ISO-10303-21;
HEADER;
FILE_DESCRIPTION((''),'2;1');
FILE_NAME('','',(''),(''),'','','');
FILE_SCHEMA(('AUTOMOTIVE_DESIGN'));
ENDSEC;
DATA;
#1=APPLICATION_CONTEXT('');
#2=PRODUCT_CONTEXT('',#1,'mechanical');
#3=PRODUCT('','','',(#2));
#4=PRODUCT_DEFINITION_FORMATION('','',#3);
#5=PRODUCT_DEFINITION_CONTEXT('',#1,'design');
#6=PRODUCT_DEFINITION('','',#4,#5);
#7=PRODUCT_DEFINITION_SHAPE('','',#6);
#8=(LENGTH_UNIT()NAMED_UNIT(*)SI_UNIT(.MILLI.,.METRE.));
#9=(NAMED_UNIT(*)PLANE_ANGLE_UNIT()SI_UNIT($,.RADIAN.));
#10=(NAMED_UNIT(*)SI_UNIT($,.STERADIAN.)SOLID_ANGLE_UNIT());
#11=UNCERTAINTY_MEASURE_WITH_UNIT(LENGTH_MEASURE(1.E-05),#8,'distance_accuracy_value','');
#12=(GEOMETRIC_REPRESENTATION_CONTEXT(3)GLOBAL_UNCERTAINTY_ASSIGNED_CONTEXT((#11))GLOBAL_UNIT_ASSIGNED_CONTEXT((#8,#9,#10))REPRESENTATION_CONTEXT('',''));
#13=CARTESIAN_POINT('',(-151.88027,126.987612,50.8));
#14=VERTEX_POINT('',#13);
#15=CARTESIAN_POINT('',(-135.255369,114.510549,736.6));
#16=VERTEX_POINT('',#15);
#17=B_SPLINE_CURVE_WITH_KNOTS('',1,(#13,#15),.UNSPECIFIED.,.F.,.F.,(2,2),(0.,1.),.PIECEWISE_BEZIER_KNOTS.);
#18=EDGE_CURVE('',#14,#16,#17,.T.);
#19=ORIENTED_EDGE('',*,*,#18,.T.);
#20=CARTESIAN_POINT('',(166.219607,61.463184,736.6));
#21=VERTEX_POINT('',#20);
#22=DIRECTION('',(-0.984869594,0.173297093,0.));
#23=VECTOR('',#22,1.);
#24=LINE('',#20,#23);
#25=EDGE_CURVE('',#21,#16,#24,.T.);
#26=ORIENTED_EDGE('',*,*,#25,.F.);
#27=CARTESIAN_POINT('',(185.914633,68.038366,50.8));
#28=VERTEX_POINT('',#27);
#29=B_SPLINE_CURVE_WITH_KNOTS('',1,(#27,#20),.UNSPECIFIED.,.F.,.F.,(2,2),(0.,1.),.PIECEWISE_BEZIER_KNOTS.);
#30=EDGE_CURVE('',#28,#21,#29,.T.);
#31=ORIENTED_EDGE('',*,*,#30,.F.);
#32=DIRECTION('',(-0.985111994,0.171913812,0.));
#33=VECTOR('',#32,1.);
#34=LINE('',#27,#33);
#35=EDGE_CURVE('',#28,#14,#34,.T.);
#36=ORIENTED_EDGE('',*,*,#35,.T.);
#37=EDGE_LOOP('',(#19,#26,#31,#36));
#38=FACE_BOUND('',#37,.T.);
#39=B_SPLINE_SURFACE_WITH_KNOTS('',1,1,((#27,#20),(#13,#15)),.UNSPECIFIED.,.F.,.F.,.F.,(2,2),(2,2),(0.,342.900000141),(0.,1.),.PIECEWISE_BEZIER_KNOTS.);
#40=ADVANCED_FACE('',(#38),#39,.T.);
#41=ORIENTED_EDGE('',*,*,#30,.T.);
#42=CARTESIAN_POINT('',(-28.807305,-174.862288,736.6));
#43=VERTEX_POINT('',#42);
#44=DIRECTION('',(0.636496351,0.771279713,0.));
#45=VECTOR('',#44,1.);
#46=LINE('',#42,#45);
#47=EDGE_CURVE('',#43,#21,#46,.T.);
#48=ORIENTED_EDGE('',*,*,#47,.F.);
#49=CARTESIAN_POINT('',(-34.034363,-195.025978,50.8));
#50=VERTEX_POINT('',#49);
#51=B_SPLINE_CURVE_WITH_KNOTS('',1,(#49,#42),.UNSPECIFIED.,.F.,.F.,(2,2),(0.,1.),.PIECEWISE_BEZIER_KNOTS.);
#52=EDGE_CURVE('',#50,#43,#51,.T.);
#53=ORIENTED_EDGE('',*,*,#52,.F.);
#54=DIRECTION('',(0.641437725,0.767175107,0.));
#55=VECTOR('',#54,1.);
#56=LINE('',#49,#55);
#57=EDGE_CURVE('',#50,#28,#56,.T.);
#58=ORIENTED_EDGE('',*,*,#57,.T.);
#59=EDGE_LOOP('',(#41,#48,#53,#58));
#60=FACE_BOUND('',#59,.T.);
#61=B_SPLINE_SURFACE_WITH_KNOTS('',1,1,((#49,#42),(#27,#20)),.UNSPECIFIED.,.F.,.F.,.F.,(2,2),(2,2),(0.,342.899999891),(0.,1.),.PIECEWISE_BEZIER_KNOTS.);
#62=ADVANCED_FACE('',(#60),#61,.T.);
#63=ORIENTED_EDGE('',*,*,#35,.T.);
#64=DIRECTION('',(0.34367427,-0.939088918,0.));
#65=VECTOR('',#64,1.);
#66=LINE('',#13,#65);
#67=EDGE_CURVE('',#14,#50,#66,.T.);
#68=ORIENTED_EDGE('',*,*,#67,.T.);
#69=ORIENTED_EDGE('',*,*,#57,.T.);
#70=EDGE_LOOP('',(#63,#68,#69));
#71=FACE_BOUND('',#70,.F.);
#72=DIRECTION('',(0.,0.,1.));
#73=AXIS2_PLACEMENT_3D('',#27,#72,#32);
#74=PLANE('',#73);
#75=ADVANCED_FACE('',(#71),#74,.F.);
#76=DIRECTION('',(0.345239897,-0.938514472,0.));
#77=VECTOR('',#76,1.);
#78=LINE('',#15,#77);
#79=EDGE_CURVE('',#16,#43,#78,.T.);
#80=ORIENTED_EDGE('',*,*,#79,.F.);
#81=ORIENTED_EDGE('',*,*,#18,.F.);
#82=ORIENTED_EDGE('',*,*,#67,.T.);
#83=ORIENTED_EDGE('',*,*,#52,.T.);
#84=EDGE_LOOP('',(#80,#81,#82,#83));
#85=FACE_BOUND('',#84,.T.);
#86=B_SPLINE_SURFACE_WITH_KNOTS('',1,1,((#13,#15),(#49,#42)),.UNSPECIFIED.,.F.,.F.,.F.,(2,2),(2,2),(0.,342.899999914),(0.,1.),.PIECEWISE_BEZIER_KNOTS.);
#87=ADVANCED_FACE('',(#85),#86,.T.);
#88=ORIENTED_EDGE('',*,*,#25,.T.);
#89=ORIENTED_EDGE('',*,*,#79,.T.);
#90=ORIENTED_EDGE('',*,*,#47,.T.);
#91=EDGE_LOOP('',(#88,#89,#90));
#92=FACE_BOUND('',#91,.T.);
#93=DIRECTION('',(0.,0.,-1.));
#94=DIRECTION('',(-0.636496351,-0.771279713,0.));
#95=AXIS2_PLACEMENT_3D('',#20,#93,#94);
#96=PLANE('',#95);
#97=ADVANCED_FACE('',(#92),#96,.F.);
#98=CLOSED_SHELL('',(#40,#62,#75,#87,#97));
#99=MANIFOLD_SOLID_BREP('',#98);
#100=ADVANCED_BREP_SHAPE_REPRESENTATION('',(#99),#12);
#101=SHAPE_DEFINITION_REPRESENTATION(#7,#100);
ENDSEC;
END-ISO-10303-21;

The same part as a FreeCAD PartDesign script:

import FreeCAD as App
import Part
import Sketcher
Q = App.Units.Quantity


def add_polygon(sketch, points):
    """Adds a closed chain of lines whose ends are joined by coincident constraints."""
    first, n = sketch.GeometryCount, len(points)
    for a, b in zip(points, points[1:] + points[:1]):
        sketch.addGeometry(Part.LineSegment(App.Vector(*a, 0), App.Vector(*b, 0)), False)
    for i in range(n):
        sketch.addConstraint(Sketcher.Constraint("Coincident", first + i, 2, first + (i + 1) % n, 1))

doc = App.newDocument("Part")
params = doc.addObject("Spreadsheet::Sheet", "Params")
for row, (alias, value) in enumerate([
    ("sketch1_length", "13.5 in"),
], start=1):
    params.set(f"A{row}", alias)
    params.set(f"B{row}", "=" + value)
    params.setAlias(f"B{row}", alias)

body = doc.addObject("PartDesign::Body", "Body")

# Sketch on XY plane
sketch1 = doc.addObject("Sketcher::SketchObject", "Sketch")
body.addObject(sketch1)
sketch1.AttachmentSupport = (doc.XY_Plane, [""])
sketch1.MapMode = "FlatFace"
sketch1.AttachmentOffset = App.Placement(App.Vector(0, 0, 2 * 25.4), App.Rotation())
add_polygon(sketch1, [(186, 68), (-152, 127), (-34, -195)])  # lines 0-2
sketch1.addConstraint([
    Sketcher.Constraint("Equal", 0, 1),
    Sketcher.Constraint("Equal", 1, 2),
    Sketcher.Constraint("Distance", 0, Q("13.5 in")),
    Sketcher.Constraint("DistanceX", 0, 2, -1, 1, Q("151.88027 mm")),
    Sketcher.Constraint("DistanceY", -1, 1, 0, 2, Q("126.987612 mm")),
    Sketcher.Constraint("DistanceY", 1, 2, -1, 1, Q("195.025978 mm")),
])
sketch1.setExpression("Constraints[5]", "Params.sketch1_length")

# Sketch on XY plane
sketch2 = doc.addObject("Sketcher::SketchObject", "Sketch001")
body.addObject(sketch2)
sketch2.AttachmentSupport = (doc.XY_Plane, [""])
sketch2.MapMode = "FlatFace"
sketch2.AttachmentOffset = App.Placement(App.Vector(0, 0, 29 * 25.4), App.Rotation())
add_polygon(sketch2, [(166, 61), (-135, 115), (-29, -175)])  # lines 0-2
sketch2.addConstraint([
    Sketcher.Constraint("Distance", 0, Q("306.106491 mm")),
    Sketcher.Constraint("Distance", 2, Q("306.40696 mm")),
    Sketcher.Constraint("DistanceX", 0, 2, -1, 1, Q("135.255369 mm")),
    Sketcher.Constraint("DistanceY", -1, 1, 0, 2, Q("114.510549 mm")),
    Sketcher.Constraint("DistanceY", 1, 2, -1, 1, Q("174.862288 mm")),
    Sketcher.Constraint("DistanceX", 1, 2, 2, 2, Q("195.026912 mm")),
])

additiveloft = doc.addObject("PartDesign::AdditiveLoft", "AdditiveLoft")
body.addObject(additiveloft)
additiveloft.Profile = sketch1
additiveloft.Sections = [sketch2]

doc.recompute()
